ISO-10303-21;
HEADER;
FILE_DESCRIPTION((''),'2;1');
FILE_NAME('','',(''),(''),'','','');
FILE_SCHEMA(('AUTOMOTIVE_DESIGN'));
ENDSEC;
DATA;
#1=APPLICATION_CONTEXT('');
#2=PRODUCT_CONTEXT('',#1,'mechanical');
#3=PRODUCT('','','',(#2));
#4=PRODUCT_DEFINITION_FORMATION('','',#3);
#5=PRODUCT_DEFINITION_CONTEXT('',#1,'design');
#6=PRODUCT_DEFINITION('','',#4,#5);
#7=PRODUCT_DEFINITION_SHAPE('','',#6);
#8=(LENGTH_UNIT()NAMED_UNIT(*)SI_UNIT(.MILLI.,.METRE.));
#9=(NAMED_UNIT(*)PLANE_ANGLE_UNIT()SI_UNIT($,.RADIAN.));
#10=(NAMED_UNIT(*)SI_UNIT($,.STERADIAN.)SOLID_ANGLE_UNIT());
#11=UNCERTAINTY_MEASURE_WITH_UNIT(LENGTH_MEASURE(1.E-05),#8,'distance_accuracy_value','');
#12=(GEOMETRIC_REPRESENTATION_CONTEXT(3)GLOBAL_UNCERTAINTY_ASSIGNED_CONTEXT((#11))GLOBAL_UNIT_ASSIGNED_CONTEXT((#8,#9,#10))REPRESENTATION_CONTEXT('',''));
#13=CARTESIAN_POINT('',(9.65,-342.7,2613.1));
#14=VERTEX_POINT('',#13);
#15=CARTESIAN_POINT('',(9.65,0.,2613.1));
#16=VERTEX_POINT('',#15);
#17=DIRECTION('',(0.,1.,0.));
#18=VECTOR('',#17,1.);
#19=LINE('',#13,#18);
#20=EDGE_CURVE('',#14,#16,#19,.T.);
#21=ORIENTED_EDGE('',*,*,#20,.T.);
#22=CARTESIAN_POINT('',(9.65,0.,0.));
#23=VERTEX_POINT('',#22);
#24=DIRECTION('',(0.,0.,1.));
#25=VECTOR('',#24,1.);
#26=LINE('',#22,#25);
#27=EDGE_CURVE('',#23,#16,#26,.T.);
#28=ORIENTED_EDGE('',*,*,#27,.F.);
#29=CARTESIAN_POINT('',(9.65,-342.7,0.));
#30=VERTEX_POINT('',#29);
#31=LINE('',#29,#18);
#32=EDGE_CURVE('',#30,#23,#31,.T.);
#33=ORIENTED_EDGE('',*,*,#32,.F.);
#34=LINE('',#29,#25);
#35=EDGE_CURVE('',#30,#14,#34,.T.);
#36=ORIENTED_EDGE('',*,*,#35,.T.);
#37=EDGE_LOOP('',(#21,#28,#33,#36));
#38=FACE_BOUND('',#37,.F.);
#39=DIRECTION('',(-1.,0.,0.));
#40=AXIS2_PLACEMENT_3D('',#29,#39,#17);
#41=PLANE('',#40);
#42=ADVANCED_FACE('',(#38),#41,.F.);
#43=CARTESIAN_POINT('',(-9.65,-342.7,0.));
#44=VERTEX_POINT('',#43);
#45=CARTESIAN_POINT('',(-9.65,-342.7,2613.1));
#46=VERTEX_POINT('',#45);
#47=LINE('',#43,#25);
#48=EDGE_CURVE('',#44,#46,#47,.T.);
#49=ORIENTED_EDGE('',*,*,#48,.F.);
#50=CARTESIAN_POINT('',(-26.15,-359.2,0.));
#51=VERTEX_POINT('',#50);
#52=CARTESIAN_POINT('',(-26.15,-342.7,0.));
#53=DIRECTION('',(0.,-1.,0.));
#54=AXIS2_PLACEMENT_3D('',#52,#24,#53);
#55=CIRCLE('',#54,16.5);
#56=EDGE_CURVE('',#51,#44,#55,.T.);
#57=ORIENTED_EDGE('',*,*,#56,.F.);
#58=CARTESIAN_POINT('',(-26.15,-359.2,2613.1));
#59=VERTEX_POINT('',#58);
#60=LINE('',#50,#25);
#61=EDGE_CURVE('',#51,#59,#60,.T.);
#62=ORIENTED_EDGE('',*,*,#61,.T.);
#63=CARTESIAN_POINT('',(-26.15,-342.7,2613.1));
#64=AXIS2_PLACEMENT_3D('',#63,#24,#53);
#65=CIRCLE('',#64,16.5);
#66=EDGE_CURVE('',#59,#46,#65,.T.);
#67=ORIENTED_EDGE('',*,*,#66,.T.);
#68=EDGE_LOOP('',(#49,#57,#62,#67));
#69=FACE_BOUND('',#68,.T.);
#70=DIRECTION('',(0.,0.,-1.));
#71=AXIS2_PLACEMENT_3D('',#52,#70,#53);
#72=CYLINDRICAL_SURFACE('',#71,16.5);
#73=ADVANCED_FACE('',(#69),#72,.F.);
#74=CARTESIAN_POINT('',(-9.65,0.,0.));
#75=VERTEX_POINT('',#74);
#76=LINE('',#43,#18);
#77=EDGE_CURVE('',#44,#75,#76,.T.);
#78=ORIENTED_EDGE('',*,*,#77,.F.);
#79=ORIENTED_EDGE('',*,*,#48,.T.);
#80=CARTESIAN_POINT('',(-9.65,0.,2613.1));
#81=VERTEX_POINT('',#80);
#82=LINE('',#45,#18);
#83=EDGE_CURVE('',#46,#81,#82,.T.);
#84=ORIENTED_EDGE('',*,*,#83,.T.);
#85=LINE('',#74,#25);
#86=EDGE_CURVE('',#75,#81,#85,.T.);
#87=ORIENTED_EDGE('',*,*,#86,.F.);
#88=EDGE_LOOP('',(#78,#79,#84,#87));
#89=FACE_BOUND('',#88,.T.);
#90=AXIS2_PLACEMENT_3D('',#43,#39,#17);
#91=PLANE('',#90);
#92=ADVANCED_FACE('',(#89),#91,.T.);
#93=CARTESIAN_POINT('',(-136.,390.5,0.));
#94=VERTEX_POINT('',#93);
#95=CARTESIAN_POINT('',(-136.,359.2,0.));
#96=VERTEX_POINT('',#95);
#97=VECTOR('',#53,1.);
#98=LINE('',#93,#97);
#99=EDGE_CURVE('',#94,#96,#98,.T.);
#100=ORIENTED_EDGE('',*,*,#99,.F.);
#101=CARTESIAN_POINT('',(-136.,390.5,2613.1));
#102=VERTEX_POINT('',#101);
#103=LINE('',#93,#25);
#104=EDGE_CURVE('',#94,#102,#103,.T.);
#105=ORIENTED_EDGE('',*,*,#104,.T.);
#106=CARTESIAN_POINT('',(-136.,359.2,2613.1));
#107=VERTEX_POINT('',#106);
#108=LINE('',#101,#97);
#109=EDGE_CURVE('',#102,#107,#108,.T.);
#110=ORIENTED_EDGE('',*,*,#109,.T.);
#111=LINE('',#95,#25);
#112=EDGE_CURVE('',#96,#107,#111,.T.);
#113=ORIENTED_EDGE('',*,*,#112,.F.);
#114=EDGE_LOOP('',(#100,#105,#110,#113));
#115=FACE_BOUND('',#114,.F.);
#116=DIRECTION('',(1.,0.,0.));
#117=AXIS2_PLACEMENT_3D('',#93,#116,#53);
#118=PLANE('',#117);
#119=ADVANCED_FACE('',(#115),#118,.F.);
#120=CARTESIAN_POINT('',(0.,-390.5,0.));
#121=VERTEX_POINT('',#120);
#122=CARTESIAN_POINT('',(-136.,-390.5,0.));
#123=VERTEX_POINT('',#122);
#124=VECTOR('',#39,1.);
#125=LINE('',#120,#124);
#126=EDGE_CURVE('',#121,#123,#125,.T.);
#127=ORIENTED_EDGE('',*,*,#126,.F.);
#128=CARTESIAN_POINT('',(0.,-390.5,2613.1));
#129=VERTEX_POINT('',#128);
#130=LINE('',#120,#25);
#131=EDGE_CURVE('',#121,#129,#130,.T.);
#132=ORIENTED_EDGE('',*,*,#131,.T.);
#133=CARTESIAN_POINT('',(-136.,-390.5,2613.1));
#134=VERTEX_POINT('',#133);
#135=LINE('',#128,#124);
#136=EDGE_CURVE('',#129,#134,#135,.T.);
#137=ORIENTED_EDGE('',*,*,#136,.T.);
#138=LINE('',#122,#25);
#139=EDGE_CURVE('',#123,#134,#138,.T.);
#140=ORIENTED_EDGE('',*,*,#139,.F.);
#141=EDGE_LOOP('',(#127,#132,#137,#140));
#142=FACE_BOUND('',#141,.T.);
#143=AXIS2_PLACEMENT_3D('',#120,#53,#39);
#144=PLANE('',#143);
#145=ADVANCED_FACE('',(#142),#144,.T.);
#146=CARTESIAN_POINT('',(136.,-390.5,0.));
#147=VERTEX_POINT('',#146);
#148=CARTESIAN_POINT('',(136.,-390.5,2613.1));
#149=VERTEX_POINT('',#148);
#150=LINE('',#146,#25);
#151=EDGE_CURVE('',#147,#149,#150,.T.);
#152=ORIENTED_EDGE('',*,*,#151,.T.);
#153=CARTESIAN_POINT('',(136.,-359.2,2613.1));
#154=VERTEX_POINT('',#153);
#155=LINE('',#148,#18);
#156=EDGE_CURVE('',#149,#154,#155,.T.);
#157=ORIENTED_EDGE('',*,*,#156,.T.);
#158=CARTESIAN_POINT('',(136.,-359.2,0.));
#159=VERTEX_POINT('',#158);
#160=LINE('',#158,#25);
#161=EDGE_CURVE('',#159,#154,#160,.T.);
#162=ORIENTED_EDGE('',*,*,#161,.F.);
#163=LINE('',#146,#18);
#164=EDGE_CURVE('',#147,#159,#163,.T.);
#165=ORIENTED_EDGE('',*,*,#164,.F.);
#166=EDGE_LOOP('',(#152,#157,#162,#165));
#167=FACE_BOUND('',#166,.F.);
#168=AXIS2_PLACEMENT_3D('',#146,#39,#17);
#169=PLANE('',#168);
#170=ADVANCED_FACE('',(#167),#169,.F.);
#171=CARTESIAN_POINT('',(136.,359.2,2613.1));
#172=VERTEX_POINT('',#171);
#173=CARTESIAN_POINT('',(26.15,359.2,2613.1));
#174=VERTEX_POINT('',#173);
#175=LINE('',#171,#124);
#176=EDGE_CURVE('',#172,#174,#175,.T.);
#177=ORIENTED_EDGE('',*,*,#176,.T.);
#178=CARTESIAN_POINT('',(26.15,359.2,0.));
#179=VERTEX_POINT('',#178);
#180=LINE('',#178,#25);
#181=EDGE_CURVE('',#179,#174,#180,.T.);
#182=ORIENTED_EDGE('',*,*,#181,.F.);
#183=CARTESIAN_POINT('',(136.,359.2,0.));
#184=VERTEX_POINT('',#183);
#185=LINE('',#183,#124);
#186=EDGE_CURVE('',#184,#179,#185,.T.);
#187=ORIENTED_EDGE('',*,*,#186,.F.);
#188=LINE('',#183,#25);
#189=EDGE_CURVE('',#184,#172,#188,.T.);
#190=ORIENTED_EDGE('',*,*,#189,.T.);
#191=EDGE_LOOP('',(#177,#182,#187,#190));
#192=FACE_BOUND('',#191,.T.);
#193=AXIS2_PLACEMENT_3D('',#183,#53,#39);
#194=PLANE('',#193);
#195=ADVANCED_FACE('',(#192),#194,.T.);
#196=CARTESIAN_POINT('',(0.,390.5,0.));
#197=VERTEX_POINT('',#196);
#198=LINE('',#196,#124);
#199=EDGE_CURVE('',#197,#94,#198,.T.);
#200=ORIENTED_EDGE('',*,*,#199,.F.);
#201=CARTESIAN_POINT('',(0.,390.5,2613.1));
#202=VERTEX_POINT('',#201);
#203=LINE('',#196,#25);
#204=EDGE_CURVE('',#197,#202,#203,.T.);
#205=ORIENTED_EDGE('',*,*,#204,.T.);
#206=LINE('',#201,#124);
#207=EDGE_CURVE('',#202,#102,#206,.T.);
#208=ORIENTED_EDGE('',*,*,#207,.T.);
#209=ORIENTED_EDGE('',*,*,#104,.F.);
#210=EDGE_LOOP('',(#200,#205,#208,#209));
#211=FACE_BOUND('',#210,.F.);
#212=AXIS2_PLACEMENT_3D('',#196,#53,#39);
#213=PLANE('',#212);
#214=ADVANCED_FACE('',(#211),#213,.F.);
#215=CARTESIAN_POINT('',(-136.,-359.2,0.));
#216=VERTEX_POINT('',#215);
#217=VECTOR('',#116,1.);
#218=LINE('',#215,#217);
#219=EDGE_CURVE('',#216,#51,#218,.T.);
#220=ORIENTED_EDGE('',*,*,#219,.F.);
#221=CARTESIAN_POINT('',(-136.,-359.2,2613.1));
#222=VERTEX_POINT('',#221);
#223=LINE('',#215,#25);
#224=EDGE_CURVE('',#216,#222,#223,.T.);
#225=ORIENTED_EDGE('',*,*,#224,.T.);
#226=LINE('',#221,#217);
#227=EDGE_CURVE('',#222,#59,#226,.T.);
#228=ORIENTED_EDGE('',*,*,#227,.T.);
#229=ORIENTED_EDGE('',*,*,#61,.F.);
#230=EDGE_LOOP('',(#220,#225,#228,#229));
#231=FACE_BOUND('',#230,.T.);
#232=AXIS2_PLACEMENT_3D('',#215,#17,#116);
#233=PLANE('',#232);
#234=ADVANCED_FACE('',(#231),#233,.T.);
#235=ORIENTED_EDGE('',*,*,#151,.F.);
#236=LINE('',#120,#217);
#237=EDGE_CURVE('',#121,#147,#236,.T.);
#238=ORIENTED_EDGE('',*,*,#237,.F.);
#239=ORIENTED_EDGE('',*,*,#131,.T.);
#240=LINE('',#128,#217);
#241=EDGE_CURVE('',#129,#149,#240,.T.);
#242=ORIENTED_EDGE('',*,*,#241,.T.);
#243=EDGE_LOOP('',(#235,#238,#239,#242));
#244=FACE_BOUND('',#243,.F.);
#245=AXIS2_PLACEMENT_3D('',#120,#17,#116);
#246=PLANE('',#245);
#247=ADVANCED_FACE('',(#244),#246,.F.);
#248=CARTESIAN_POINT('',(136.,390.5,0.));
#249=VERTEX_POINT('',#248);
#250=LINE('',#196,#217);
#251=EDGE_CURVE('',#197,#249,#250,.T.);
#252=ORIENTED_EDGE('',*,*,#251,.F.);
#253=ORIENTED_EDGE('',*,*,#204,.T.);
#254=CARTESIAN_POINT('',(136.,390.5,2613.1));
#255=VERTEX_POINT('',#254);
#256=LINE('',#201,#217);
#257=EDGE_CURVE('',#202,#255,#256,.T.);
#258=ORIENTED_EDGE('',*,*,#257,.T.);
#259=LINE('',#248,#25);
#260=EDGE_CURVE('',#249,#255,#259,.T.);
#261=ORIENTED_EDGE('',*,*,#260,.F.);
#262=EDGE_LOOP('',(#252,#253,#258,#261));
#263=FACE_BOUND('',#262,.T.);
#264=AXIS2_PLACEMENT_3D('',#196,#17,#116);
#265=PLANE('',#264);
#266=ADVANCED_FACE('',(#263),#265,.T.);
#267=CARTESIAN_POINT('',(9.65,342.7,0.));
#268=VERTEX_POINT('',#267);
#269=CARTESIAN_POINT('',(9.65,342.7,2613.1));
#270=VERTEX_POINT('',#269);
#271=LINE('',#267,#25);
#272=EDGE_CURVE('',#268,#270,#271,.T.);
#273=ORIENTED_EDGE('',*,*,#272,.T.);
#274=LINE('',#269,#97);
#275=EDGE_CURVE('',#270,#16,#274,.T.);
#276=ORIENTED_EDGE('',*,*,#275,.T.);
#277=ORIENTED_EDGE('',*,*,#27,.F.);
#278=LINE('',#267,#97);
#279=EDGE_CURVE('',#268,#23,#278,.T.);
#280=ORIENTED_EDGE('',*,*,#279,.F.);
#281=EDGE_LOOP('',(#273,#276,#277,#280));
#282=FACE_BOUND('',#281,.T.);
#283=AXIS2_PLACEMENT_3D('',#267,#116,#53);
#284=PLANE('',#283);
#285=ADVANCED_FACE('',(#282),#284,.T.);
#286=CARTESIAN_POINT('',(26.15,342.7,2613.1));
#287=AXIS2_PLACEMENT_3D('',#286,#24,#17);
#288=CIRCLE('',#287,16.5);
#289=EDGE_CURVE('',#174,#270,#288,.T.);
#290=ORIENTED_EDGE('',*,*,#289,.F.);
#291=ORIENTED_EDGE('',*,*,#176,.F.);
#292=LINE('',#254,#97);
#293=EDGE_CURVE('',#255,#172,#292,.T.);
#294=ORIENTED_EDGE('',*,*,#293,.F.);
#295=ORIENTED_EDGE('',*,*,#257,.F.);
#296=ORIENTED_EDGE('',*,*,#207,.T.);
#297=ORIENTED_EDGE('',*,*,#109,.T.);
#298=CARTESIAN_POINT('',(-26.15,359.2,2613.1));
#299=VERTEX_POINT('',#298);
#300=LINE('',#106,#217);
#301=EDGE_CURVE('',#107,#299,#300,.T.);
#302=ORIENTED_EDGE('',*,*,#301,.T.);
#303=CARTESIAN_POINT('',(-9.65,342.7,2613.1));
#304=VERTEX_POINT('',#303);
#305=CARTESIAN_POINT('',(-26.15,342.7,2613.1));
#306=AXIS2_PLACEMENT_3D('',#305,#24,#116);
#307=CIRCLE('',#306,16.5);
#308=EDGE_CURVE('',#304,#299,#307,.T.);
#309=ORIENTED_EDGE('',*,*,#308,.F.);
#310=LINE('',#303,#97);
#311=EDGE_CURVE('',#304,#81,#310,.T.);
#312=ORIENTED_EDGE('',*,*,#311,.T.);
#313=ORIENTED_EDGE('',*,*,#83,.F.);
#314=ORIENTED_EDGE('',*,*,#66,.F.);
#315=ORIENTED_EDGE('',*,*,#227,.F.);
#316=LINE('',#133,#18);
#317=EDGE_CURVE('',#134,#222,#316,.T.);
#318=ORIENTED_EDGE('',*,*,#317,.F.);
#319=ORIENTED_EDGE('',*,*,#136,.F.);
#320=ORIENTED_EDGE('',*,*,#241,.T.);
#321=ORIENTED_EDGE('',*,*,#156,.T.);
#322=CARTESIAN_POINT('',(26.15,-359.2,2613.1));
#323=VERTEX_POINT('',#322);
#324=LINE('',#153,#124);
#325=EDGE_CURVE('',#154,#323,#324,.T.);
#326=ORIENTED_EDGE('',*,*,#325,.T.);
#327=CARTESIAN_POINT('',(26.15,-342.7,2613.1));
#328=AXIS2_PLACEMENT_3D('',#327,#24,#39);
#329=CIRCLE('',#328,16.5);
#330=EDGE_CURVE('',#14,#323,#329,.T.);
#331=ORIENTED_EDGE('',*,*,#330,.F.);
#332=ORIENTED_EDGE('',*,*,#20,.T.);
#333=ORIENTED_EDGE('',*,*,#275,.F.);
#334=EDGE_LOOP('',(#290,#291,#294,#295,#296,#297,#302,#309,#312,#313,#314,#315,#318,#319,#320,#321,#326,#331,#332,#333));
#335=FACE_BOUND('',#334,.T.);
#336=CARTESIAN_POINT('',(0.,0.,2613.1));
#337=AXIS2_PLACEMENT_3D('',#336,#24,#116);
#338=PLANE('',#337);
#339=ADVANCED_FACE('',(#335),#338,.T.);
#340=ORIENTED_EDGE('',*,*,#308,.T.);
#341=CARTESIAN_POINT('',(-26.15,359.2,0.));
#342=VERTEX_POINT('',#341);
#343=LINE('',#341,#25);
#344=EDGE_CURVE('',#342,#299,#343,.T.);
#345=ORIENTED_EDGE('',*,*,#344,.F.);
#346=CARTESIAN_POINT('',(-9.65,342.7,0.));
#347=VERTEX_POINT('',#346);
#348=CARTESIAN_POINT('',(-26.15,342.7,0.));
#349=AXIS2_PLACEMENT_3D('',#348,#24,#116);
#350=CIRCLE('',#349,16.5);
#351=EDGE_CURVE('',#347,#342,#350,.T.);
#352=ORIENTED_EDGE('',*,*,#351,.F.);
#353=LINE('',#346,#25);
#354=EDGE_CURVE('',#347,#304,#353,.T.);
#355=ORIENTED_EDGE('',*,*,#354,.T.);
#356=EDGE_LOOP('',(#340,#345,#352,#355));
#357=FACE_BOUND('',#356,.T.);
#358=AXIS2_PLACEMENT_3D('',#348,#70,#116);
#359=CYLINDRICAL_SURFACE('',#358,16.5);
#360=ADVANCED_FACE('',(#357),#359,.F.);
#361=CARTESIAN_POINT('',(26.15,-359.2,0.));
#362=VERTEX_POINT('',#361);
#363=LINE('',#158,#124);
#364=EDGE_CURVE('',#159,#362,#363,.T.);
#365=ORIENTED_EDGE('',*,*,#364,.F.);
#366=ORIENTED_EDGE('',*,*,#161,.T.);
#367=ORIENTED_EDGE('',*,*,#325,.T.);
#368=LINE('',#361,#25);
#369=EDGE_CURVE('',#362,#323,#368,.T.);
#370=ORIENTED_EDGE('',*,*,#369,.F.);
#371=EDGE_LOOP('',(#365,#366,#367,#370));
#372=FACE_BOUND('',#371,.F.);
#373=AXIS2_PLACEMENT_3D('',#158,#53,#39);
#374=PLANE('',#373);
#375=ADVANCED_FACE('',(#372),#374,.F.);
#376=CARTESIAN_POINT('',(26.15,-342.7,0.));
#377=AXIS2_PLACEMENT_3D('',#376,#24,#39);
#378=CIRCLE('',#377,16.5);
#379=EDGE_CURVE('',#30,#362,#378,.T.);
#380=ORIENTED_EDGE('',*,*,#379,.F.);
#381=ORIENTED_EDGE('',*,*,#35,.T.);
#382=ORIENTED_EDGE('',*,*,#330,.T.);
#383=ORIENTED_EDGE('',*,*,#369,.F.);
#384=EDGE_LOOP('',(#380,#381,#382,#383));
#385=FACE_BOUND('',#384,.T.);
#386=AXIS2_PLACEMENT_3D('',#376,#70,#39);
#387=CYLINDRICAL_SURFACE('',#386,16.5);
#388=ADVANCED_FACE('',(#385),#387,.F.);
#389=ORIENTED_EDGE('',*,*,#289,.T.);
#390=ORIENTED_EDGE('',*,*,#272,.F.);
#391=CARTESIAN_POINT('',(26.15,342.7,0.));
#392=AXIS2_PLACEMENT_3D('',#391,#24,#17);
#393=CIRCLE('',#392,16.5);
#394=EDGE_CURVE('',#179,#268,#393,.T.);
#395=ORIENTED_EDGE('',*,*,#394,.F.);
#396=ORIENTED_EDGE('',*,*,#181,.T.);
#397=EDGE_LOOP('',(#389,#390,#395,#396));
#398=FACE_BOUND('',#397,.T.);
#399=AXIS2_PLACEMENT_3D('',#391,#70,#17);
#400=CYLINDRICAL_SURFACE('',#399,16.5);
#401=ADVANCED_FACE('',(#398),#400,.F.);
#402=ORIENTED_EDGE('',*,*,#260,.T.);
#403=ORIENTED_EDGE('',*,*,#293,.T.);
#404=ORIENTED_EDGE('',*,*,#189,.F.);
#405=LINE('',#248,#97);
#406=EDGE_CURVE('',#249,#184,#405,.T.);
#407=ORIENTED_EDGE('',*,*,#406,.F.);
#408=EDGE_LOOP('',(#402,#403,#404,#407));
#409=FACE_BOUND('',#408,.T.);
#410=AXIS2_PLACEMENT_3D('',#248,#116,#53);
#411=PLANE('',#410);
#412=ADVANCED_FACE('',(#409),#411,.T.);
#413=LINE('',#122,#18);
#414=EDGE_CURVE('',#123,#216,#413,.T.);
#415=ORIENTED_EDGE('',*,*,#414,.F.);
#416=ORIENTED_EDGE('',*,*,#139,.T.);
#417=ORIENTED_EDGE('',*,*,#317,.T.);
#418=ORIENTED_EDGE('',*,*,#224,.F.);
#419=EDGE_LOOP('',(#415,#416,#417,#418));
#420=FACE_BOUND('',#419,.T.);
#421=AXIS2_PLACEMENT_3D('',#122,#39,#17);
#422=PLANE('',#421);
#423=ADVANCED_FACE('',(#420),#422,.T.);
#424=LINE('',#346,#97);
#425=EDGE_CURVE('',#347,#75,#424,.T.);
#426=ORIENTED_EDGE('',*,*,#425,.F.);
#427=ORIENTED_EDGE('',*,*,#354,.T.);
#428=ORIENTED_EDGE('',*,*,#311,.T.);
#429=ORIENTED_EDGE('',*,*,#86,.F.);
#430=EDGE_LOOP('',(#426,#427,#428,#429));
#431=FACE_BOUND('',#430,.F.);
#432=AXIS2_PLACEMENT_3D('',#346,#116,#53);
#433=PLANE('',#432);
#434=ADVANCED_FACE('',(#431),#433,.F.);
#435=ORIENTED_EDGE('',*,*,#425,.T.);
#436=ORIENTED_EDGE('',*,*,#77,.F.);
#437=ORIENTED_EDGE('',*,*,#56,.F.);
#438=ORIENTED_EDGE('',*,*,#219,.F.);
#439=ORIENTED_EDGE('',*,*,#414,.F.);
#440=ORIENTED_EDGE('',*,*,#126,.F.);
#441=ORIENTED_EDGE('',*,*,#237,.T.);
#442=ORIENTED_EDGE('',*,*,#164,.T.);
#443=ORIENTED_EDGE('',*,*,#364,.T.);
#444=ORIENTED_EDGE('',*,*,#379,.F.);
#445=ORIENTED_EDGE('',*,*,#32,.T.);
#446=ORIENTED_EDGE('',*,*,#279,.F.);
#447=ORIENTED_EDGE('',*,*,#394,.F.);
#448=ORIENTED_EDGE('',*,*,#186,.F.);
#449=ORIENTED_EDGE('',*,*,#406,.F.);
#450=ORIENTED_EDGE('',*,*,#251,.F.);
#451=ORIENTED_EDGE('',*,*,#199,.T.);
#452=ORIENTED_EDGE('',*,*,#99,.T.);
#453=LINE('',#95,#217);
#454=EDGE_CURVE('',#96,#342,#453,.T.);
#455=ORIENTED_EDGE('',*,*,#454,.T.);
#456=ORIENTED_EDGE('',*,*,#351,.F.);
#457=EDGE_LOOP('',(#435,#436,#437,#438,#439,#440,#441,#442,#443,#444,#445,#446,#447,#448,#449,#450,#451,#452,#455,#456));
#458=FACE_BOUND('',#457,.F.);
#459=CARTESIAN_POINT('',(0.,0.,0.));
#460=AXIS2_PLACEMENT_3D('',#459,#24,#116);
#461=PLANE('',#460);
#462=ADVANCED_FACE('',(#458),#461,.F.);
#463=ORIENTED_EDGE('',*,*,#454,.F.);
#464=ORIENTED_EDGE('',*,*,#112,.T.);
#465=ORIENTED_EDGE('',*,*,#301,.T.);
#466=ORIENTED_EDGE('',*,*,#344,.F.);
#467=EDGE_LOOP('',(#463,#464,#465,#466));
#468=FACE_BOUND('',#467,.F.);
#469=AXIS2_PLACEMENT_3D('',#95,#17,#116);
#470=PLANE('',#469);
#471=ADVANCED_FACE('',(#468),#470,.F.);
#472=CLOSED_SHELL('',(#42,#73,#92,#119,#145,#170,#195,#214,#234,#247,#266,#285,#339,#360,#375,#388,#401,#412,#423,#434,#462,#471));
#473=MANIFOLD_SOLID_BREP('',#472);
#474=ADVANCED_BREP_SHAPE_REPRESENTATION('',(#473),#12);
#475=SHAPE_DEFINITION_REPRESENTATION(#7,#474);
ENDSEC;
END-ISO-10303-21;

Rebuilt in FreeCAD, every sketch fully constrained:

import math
import FreeCAD as App
import Part
import Sketcher
Q = App.Units.Quantity

doc = App.newDocument("Part")
body = doc.addObject("PartDesign::Body", "Body")

sketch1 = body.newObject("Sketcher::SketchObject", "Sketch")
sketch1.AttachmentSupport = (doc.getObject("XY_Plane"), [""])
sketch1.MapMode = "FlatFace"
sketch1.addGeometry(Part.LineSegment(App.Vector(-136, -359, 0), App.Vector(-136, -390, 0)), False)
sketch1.addGeometry(Part.LineSegment(App.Vector(-136, -390, 0), App.Vector(136, -390, 0)), False)
sketch1.addGeometry(Part.LineSegment(App.Vector(136, -390, 0), App.Vector(136, -359, 0)), False)
sketch1.addGeometry(Part.LineSegment(App.Vector(136, -359, 0), App.Vector(26, -359, 0)), False)
sketch1.addGeometry(Part.ArcOfCircle(Part.Circle(App.Vector(26, -343, 0), App.Vector(0, 0, 1), 16), math.radians(180), math.radians(270)), False)
sketch1.addGeometry(Part.LineSegment(App.Vector(10, -343, 0), App.Vector(10, 343, 0)), False)
sketch1.addGeometry(Part.ArcOfCircle(Part.Circle(App.Vector(26, 343, 0), App.Vector(0, 0, 1), 16), math.radians(90), math.radians(180)), False)
sketch1.addGeometry(Part.LineSegment(App.Vector(26, 359, 0), App.Vector(136, 359, 0)), False)
sketch1.addGeometry(Part.LineSegment(App.Vector(136, 359, 0), App.Vector(136, 390, 0)), False)
sketch1.addGeometry(Part.LineSegment(App.Vector(136, 390, 0), App.Vector(-136, 390, 0)), False)
sketch1.addGeometry(Part.LineSegment(App.Vector(-136, 390, 0), App.Vector(-136, 359, 0)), False)
sketch1.addGeometry(Part.LineSegment(App.Vector(-136, 359, 0), App.Vector(-26, 359, 0)), False)
sketch1.addGeometry(Part.ArcOfCircle(Part.Circle(App.Vector(-26, 343, 0), App.Vector(0, 0, 1), 16), math.radians(0), math.radians(90)), False)
sketch1.addGeometry(Part.LineSegment(App.Vector(-10, 343, 0), App.Vector(-10, -343, 0)), False)
sketch1.addGeometry(Part.ArcOfCircle(Part.Circle(App.Vector(-26, -343, 0), App.Vector(0, 0, 1), 16), math.radians(-90), math.radians(0)), False)
sketch1.addGeometry(Part.LineSegment(App.Vector(-26, -359, 0), App.Vector(-136, -359, 0)), False)
sketch1.addConstraint(Sketcher.Constraint("Coincident", 0, 2, 1, 1))
sketch1.addConstraint(Sketcher.Constraint("Coincident", 1, 2, 2, 1))
sketch1.addConstraint(Sketcher.Constraint("Coincident", 2, 2, 3, 1))
sketch1.addConstraint(Sketcher.Constraint("Tangent", 3, 2, 4, 2))
sketch1.addConstraint(Sketcher.Constraint("Tangent", 4, 1, 5, 1))
sketch1.addConstraint(Sketcher.Constraint("Tangent", 5, 2, 6, 2))
sketch1.addConstraint(Sketcher.Constraint("Tangent", 6, 1, 7, 1))
sketch1.addConstraint(Sketcher.Constraint("Coincident", 7, 2, 8, 1))
sketch1.addConstraint(Sketcher.Constraint("Coincident", 8, 2, 9, 1))
sketch1.addConstraint(Sketcher.Constraint("Coincident", 9, 2, 10, 1))
sketch1.addConstraint(Sketcher.Constraint("Coincident", 10, 2, 11, 1))
sketch1.addConstraint(Sketcher.Constraint("Tangent", 11, 2, 12, 2))
sketch1.addConstraint(Sketcher.Constraint("Tangent", 12, 1, 13, 1))
sketch1.addConstraint(Sketcher.Constraint("Tangent", 13, 2, 14, 2))
sketch1.addConstraint(Sketcher.Constraint("Tangent", 14, 1, 15, 1))
sketch1.addConstraint(Sketcher.Constraint("Coincident", 15, 2, 0, 1))
sketch1.addConstraint(Sketcher.Constraint("Vertical", 0))
sketch1.addConstraint(Sketcher.Constraint("Horizontal", 1))
sketch1.addConstraint(Sketcher.Constraint("Vertical", 2))
sketch1.addConstraint(Sketcher.Constraint("Horizontal", 3))
sketch1.addConstraint(Sketcher.Constraint("Vertical", 5))
sketch1.addConstraint(Sketcher.Constraint("Horizontal", 7))
sketch1.addConstraint(Sketcher.Constraint("Vertical", 8))
sketch1.addConstraint(Sketcher.Constraint("Horizontal", 9))
sketch1.addConstraint(Sketcher.Constraint("Vertical", 10))
sketch1.addConstraint(Sketcher.Constraint("Horizontal", 11))
sketch1.addConstraint(Sketcher.Constraint("Vertical", 13))
sketch1.addConstraint(Sketcher.Constraint("Horizontal", 15))
sketch1.addConstraint(Sketcher.Constraint("Equal", 4, 6))
sketch1.addConstraint(Sketcher.Constraint("Equal", 6, 12))
sketch1.addConstraint(Sketcher.Constraint("Equal", 12, 14))
sketch1.addConstraint(Sketcher.Constraint("Symmetric", 4, 3, 12, 3, -1, 1))
sketch1.addConstraint(Sketcher.Constraint("Symmetric", 0, 2, 8, 2, -1, 1))
sketch1.addConstraint(Sketcher.Constraint("Symmetric", 7, 2, 10, 2, -2))
sketch1.addConstraint(Sketcher.Constraint("Symmetric", 2, 2, 15, 2, -2))
sketch1.addConstraint(Sketcher.Constraint("Radius", 4, Q("16.5 mm")))
sketch1.addConstraint(Sketcher.Constraint("DistanceY", 0, 2, 0, 1, Q("31.3 mm")))
sketch1.addConstraint(Sketcher.Constraint("DistanceX", 0, 2, -1, 1, Q("136 mm")))
sketch1.addConstraint(Sketcher.Constraint("DistanceY", 0, 2, -1, 1, Q("390.5 mm")))
sketch1.addConstraint(Sketcher.Constraint("DistanceX", -1, 1, 4, 1, Q("9.65 mm")))
pad1 = body.newObject("PartDesign::Pad", "Pad")
pad1.Profile = sketch1
pad1.Length = 2613.1

doc.recompute()
